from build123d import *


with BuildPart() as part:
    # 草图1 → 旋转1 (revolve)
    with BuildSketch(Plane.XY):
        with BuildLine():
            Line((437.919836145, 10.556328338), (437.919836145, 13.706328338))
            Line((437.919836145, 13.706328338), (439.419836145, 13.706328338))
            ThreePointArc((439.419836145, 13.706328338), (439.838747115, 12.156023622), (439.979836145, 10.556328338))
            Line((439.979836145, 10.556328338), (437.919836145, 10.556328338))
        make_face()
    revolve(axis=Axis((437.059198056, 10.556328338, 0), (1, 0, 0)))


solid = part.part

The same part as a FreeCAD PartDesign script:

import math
import FreeCAD as App
import Part
import Sketcher

V = App.Vector

doc = App.newDocument("Part")
params = doc.addObject("Spreadsheet::Sheet", "Params")
for row, (alias, value) in enumerate([
    ("sketch1_width", "1.5 mm"),
    ("sketch1_width2", "2.06 mm"),
    ("sketch1_height", "3.15 mm"),
    ("revolution_angle", "360 deg"),
], start=1):
    params.set(f"A{row}", alias)
    params.set(f"B{row}", "=" + value)
    params.setAlias(f"B{row}", alias)

body = doc.addObject("PartDesign::Body", "Body")

# Sketch on XY plane
sketch1 = body.newObject("Sketcher::SketchObject", "Sketch")
sketch1.AttachmentSupport = (doc.getObject("XY_Plane"), [""])
sketch1.MapMode = "FlatFace"
sketch1.addGeometry([
    Part.LineSegment(V(437.9, 13.7, 0), V(437.9, 10.6, 0)),
    Part.LineSegment(V(437.9, 10.6, 0), V(440, 10.6, 0)),
    Part.ArcOfCircle(Part.Circle(V(430.8, 10.6, 0), V(0, 0, 1), 9.1), math.radians(0), math.radians(20)),
    Part.LineSegment(V(439.4, 13.7, 0), V(437.9, 13.7, 0)),
], False)
sketch1.addGeometry(Part.LineSegment(V(430.8, 10.6, 0), V(440, 10.6, 0)), True)  # axis
sketch1.addConstraint([
    Sketcher.Constraint("Coincident", 0, 2, 1, 1),
    Sketcher.Constraint("Coincident", 1, 2, 2, 1),
    Sketcher.Constraint("Coincident", 2, 2, 3, 1),
    Sketcher.Constraint("Coincident", 3, 2, 0, 1),
    Sketcher.Constraint("Vertical", 0),
    Sketcher.Constraint("Horizontal", 1),
    Sketcher.Constraint("Horizontal", 3),
    Sketcher.Constraint("Horizontal", 4),
    Sketcher.Constraint("Coincident", 4, 1, 2, 3),
    Sketcher.Constraint("Coincident", 4, 2, 1, 2),
    Sketcher.Constraint("DistanceX", 3, 2, 3, 1, 1.5),
    Sketcher.Constraint("DistanceX", 1, 1, 1, 2, 2.06),
    Sketcher.Constraint("DistanceY", 0, 2, 0, 1, 3.15),
    Sketcher.Constraint("DistanceX", -1, 1, 2, 3, 430.840461),
    Sketcher.Constraint("DistanceY", -1, 1, 2, 3, 10.556328),
])
sketch1.setExpression("Constraints[10]", "Params.sketch1_width")
sketch1.setExpression("Constraints[11]", "Params.sketch1_width2")
sketch1.setExpression("Constraints[12]", "Params.sketch1_height")
revolution = body.newObject("PartDesign::Revolution", "Revolution")
revolution.Profile = sketch1
revolution.ReferenceAxis = (sketch1, ["Axis0"])
revolution.setExpression("Angle", "Params.revolution_angle")

doc.recompute()
